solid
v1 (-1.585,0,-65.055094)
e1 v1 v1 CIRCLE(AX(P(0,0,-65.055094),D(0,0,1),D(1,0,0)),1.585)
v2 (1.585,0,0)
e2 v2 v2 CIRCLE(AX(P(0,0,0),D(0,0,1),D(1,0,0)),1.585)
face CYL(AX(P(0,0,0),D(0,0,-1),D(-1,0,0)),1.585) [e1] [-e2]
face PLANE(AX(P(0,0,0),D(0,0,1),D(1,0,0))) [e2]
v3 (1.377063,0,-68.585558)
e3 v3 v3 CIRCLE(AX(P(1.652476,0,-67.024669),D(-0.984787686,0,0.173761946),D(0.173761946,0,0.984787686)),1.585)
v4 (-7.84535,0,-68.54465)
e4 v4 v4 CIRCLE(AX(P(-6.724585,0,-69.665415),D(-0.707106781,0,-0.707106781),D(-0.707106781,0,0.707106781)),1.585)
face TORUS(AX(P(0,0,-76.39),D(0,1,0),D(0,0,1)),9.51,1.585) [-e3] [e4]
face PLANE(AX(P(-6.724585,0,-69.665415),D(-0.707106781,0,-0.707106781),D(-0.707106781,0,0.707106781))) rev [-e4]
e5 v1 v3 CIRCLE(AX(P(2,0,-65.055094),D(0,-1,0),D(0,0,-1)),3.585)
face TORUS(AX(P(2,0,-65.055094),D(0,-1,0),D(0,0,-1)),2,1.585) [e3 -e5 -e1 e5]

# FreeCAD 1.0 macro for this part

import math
import FreeCAD as App
import Part
import Sketcher
Q = App.Units.Quantity

doc = App.newDocument("Part")
body = doc.addObject("PartDesign::Body", "Body")

# Sketch on XY plane
sketch1 = body.newObject("Sketcher::SketchObject", "Sketch")
sketch1.AttachmentSupport = (doc.getObject("XY_Plane"), [""])
sketch1.MapMode = "FlatFace"
sketch1.addGeometry(Part.Circle(App.Vector(0, 0, 0), App.Vector(0, 0, 1), 1.6), False)
sketch1.addConstraint(Sketcher.Constraint("Coincident", 0, 3, -1, 1))
sketch1.addConstraint(Sketcher.Constraint("Diameter", 0, Q("3.17 mm")))

# Sketch on XZ plane
sketch2 = body.newObject("Sketcher::SketchObject", "Sketch001")
sketch2.AttachmentSupport = (doc.getObject("XZ_Plane"), [""])
sketch2.MapMode = "FlatFace"
sketch2.addGeometry(Part.LineSegment(App.Vector(0, 0, 0), App.Vector(0, -65.1, 0)), False)
sketch2.addGeometry(Part.ArcOfCircle(Part.Circle(App.Vector(2, -65.1, 0), App.Vector(0, 0, 1), 2), math.radians(180), math.radians(260)), False)
sketch2.addGeometry(Part.ArcOfCircle(Part.Circle(App.Vector(0, -76.4, 0), App.Vector(0, 0, 1), 9.5), math.radians(135), math.radians(440)), False)
sketch2.addConstraint(Sketcher.Constraint("Tangent", 0, 2, 1, 1))
sketch2.addConstraint(Sketcher.Constraint("Tangent", 1, 2, 2, 2))
sketch2.addConstraint(Sketcher.Constraint("Vertical", 0))
sketch2.addConstraint(Sketcher.Constraint("Coincident", 0, 1, -1, 1))
sketch2.addConstraint(Sketcher.Constraint("PointOnObject", 2, 3, -2))
sketch2.addConstraint(Sketcher.Constraint("Radius", 1, Q("2 mm")))
sketch2.addConstraint(Sketcher.Constraint("Radius", 2, Q("9.51 mm")))
sketch2.addConstraint(Sketcher.Constraint("DistanceY", 2, 3, -1, 1, Q("76.39 mm")))
sketch2.addConstraint(Sketcher.Constraint("DistanceY", 2, 1, 0, 2, Q("4.610321 mm")))
doc.recompute()

additivepipe = body.newObject("PartDesign::AdditivePipe", "AdditivePipe")
additivepipe.Profile = sketch1
additivepipe.Spine = (sketch2, ["Edge1", "Edge2", "Edge3"])

doc.recompute()
